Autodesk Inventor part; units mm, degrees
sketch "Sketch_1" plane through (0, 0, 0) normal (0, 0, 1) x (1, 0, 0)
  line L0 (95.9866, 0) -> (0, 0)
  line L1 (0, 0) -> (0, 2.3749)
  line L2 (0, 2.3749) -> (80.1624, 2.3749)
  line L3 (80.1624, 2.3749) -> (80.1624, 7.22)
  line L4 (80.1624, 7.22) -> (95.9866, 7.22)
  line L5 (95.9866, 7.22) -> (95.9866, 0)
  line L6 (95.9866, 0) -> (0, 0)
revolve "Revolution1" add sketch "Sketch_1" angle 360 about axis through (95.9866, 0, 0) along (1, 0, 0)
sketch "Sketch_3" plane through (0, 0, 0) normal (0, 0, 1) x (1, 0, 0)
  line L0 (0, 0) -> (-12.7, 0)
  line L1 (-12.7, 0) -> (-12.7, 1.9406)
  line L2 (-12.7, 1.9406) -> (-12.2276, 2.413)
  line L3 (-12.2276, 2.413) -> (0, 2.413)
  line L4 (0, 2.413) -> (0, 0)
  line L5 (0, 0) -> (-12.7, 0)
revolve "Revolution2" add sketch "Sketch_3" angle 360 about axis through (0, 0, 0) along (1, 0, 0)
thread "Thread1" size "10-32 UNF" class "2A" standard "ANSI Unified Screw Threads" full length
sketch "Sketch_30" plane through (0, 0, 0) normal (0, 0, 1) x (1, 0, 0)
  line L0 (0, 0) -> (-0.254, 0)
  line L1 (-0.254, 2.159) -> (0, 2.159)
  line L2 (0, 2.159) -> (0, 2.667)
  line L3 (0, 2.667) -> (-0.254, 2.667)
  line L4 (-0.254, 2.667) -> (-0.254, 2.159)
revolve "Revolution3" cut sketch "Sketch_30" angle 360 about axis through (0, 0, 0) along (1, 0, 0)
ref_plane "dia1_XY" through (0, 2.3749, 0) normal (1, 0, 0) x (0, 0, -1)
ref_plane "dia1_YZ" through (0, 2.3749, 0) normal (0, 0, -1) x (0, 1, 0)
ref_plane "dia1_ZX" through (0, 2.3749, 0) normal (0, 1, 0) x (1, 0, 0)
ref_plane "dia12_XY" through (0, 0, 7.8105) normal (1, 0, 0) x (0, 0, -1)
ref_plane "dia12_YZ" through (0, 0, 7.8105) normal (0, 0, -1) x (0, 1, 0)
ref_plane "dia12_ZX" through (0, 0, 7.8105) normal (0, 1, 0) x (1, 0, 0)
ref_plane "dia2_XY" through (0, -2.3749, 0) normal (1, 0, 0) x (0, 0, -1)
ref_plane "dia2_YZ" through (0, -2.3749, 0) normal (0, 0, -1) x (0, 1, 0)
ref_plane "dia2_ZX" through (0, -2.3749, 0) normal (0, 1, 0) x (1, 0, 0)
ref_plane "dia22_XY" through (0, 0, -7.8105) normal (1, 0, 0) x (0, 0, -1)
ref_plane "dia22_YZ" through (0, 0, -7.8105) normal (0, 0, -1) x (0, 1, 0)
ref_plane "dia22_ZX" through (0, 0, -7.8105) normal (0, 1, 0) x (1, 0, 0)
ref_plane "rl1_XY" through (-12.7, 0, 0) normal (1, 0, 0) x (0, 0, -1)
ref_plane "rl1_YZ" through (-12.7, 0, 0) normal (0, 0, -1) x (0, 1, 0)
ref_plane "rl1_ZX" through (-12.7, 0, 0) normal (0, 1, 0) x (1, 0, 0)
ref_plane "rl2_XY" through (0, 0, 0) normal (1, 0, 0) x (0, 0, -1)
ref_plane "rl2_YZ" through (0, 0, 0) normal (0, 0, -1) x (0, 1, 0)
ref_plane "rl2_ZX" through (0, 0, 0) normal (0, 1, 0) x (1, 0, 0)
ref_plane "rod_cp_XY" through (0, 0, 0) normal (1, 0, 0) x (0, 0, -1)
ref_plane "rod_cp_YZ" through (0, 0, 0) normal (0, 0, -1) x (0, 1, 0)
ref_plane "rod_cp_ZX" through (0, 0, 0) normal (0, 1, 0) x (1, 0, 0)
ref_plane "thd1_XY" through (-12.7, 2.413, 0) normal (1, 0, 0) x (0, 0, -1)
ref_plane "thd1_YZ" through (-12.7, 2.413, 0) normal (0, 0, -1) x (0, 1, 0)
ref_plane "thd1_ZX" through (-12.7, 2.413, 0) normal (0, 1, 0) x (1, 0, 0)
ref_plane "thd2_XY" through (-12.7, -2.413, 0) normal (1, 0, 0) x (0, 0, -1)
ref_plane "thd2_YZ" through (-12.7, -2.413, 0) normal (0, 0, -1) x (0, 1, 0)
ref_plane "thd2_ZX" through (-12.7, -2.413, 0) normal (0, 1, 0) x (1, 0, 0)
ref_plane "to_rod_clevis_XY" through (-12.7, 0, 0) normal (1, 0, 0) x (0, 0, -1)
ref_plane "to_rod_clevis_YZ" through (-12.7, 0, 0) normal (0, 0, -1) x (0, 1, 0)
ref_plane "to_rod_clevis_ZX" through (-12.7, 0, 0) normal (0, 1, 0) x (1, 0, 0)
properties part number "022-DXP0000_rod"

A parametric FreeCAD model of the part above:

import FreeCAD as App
import Part
import Sketcher
Q = App.Units.Quantity


def add_polygon(sketch, points):
    """Adds a closed chain of lines whose ends are joined by coincident constraints."""
    first, n = sketch.GeometryCount, len(points)
    for a, b in zip(points, points[1:] + points[:1]):
        sketch.addGeometry(Part.LineSegment(App.Vector(*a, 0), App.Vector(*b, 0)), False)
    for i in range(n):
        sketch.addConstraint(Sketcher.Constraint("Coincident", first + i, 2, first + (i + 1) % n, 1))

doc = App.newDocument("Part")
body = doc.addObject("PartDesign::Body", "Body")

# Sketch on XY plane
sketch1 = body.newObject("Sketcher::SketchObject", "Sketch")
sketch1.AttachmentSupport = (doc.getObject("XY_Plane"), [""])
sketch1.MapMode = "FlatFace"
add_polygon(sketch1, [(0, 0), (96, 0), (96, 7.2), (80.2, 7.2), (80.2, 2.4), (0, 2.4)])  # lines 0-5
sketch1.addConstraint([
    Sketcher.Constraint("Horizontal", 0),
    Sketcher.Constraint("Vertical", 1),
    Sketcher.Constraint("Horizontal", 2),
    Sketcher.Constraint("Vertical", 3),
    Sketcher.Constraint("Horizontal", 4),
    Sketcher.Constraint("Vertical", 5),
    Sketcher.Constraint("Coincident", 5, 2, -1, 1),
    Sketcher.Constraint("DistanceX", 0, 1, 0, 2, Q("3.779 in")),
    Sketcher.Constraint("DistanceX", 2, 2, 2, 1, Q("0.623 in")),
    Sketcher.Constraint("DistanceY", 5, 2, 5, 1, Q("0.0935 in")),
    Sketcher.Constraint("DistanceY", 1, 1, 1, 2, 7.22),
])
revolution = body.newObject("PartDesign::Revolution", "Revolution")
revolution.Profile = sketch1
revolution.ReferenceAxis = (sketch1, ["H_Axis"])
revolution.Angle = 360

# Sketch on XY plane
sketch2 = body.newObject("Sketcher::SketchObject", "Sketch001")
sketch2.AttachmentSupport = (doc.getObject("XY_Plane"), [""])
sketch2.MapMode = "FlatFace"
add_polygon(sketch2, [(-12.7, 0), (0, 0), (0, 2.4), (-12.2, 2.4), (-12.7, 1.9)])  # lines 0-4
sketch2.addConstraint([
    Sketcher.Constraint("Horizontal", 0),
    Sketcher.Constraint("Vertical", 1),
    Sketcher.Constraint("Horizontal", 2),
    Sketcher.Constraint("Vertical", 4),
    Sketcher.Constraint("Coincident", 0, 2, -1, 1),
    Sketcher.Constraint("DistanceX", 0, 1, 0, 2, Q("0.5 in")),
    Sketcher.Constraint("Angle", 3, Q("-135 deg")),
    Sketcher.Constraint("DistanceY", 1, 1, 1, 2, Q("0.095 in")),
    Sketcher.Constraint("DistanceX", 2, 2, 2, 1, Q("0.4814 in")),
])
revolution2 = body.newObject("PartDesign::Revolution", "Revolution001")
revolution2.Profile = sketch2
revolution2.ReferenceAxis = (sketch2, ["H_Axis"])
revolution2.Angle = 360

# Sketch on XY plane
sketch3 = body.newObject("Sketcher::SketchObject", "Sketch002")
sketch3.AttachmentSupport = (doc.getObject("XY_Plane"), [""])
sketch3.MapMode = "FlatFace"
add_polygon(sketch3, [(-0.25, 2.67), (-0.25, 2.16), (0, 2.16), (0, 2.67)])  # lines 0-3
sketch3.addConstraint([
    Sketcher.Constraint("Vertical", 0),
    Sketcher.Constraint("Horizontal", 1),
    Sketcher.Constraint("Vertical", 2),
    Sketcher.Constraint("Horizontal", 3),
    Sketcher.Constraint("PointOnObject", 1, 2, -2),
    Sketcher.Constraint("DistanceX", 1, 1, 1, 2, Q("0.01 in")),
    Sketcher.Constraint("DistanceY", 0, 2, 0, 1, Q("0.02 in")),
    Sketcher.Constraint("DistanceY", -1, 1, 0, 2, Q("0.085 in")),
])
groove = body.newObject("PartDesign::Groove", "Groove")
groove.Profile = sketch3
groove.ReferenceAxis = (sketch3, ["H_Axis"])
groove.Angle = 360

doc.recompute()
